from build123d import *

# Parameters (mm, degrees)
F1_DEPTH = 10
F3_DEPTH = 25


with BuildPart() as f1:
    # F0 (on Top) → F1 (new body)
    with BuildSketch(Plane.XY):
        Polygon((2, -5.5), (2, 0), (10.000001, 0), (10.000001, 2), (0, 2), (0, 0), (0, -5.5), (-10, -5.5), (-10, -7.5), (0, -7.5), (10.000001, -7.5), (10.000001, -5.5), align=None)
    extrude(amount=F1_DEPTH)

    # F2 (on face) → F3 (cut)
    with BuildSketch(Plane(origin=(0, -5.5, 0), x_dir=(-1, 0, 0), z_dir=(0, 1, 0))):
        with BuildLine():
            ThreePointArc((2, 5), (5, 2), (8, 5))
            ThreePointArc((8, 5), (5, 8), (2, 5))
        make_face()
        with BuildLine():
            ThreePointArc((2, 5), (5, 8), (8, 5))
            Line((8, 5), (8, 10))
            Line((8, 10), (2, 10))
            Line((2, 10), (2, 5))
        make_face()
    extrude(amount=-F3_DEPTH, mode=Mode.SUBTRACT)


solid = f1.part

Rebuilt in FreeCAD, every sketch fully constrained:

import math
import FreeCAD as App
import Part
import Sketcher
Q = App.Units.Quantity

doc = App.newDocument("Part")
body = doc.addObject("PartDesign::Body", "Body")

sketch1 = body.newObject("Sketcher::SketchObject", "Sketch")
sketch1.AttachmentSupport = (doc.getObject("XY_Plane"), [""])
sketch1.MapMode = "FlatFace"
sketch1.addGeometry(Part.LineSegment(App.Vector(2, -5.5, 0), App.Vector(2, 0, 0)), False)
sketch1.addGeometry(Part.LineSegment(App.Vector(2, 0, 0), App.Vector(10, 0, 0)), False)
sketch1.addGeometry(Part.LineSegment(App.Vector(10, 0, 0), App.Vector(10, 2, 0)), False)
sketch1.addGeometry(Part.LineSegment(App.Vector(10, 2, 0), App.Vector(0, 2, 0)), False)
sketch1.addGeometry(Part.LineSegment(App.Vector(0, 2, 0), App.Vector(0, -5.5, 0)), False)
sketch1.addGeometry(Part.LineSegment(App.Vector(0, -5.5, 0), App.Vector(-10, -5.5, 0)), False)
sketch1.addGeometry(Part.LineSegment(App.Vector(-10, -5.5, 0), App.Vector(-10, -7.5, 0)), False)
sketch1.addGeometry(Part.LineSegment(App.Vector(-10, -7.5, 0), App.Vector(10, -7.5, 0)), False)
sketch1.addGeometry(Part.LineSegment(App.Vector(10, -7.5, 0), App.Vector(10, -5.5, 0)), False)
sketch1.addGeometry(Part.LineSegment(App.Vector(10, -5.5, 0), App.Vector(2, -5.5, 0)), False)
sketch1.addConstraint(Sketcher.Constraint("Coincident", 0, 2, 1, 1))
sketch1.addConstraint(Sketcher.Constraint("Coincident", 1, 2, 2, 1))
sketch1.addConstraint(Sketcher.Constraint("Coincident", 2, 2, 3, 1))
sketch1.addConstraint(Sketcher.Constraint("Coincident", 3, 2, 4, 1))
sketch1.addConstraint(Sketcher.Constraint("Coincident", 4, 2, 5, 1))
sketch1.addConstraint(Sketcher.Constraint("Coincident", 5, 2, 6, 1))
sketch1.addConstraint(Sketcher.Constraint("Coincident", 6, 2, 7, 1))
sketch1.addConstraint(Sketcher.Constraint("Coincident", 7, 2, 8, 1))
sketch1.addConstraint(Sketcher.Constraint("Coincident", 8, 2, 9, 1))
sketch1.addConstraint(Sketcher.Constraint("Coincident", 9, 2, 0, 1))
sketch1.addConstraint(Sketcher.Constraint("Vertical", 0))
sketch1.addConstraint(Sketcher.Constraint("Horizontal", 1))
sketch1.addConstraint(Sketcher.Constraint("Vertical", 2))
sketch1.addConstraint(Sketcher.Constraint("Horizontal", 3))
sketch1.addConstraint(Sketcher.Constraint("Vertical", 4))
sketch1.addConstraint(Sketcher.Constraint("Horizontal", 5))
sketch1.addConstraint(Sketcher.Constraint("Vertical", 6))
sketch1.addConstraint(Sketcher.Constraint("Horizontal", 7))
sketch1.addConstraint(Sketcher.Constraint("Vertical", 8))
sketch1.addConstraint(Sketcher.Constraint("Horizontal", 9))
sketch1.addConstraint(Sketcher.Constraint("Symmetric", 5, 2, 8, 2, -2))
sketch1.addConstraint(Sketcher.Constraint("PointOnObject", 0, 2, -1))
sketch1.addConstraint(Sketcher.Constraint("PointOnObject", 3, 2, -2))
sketch1.addConstraint(Sketcher.Constraint("Vertical", 2, 2, 7, 2))
sketch1.addConstraint(Sketcher.Constraint("Equal", 2, 6))
sketch1.addConstraint(Sketcher.Constraint("DistanceX", 1, 1, 1, 2, Q("8.000001 mm")))
sketch1.addConstraint(Sketcher.Constraint("DistanceX", 3, 2, 3, 1, Q("10.000001 mm")))
sketch1.addConstraint(Sketcher.Constraint("DistanceY", 2, 1, 2, 2, Q("2 mm")))
sketch1.addConstraint(Sketcher.Constraint("DistanceY", 0, 1, 0, 2, Q("5.5 mm")))
pad1 = body.newObject("PartDesign::Pad", "Pad")
pad1.Profile = sketch1
pad1.Length = 10

sketch2 = body.newObject("Sketcher::SketchObject", "Sketch001")
sketch2.AttachmentSupport = (doc.getObject("XZ_Plane"), [""])
sketch2.MapMode = "FlatFace"
sketch2.AttachmentOffset = App.Placement(App.Vector(0, 0, 5.5), App.Rotation())
sketch2.addGeometry(Part.ArcOfCircle(Part.Circle(App.Vector(-5, 5, 0), App.Vector(0, 0, 1), 3), math.radians(180), math.radians(360)), False)
sketch2.addGeometry(Part.LineSegment(App.Vector(-8, 5, 0), App.Vector(-8, 10, 0)), False)
sketch2.addGeometry(Part.LineSegment(App.Vector(-8, 10, 0), App.Vector(-2, 10, 0)), False)
sketch2.addGeometry(Part.LineSegment(App.Vector(-2, 10, 0), App.Vector(-2, 5, 0)), False)
sketch2.addConstraint(Sketcher.Constraint("Tangent", 0, 1, 1, 1))
sketch2.addConstraint(Sketcher.Constraint("Coincident", 1, 2, 2, 1))
sketch2.addConstraint(Sketcher.Constraint("Coincident", 2, 2, 3, 1))
sketch2.addConstraint(Sketcher.Constraint("Tangent", 3, 2, 0, 2))
sketch2.addConstraint(Sketcher.Constraint("Vertical", 1))
sketch2.addConstraint(Sketcher.Constraint("Horizontal", 2))
sketch2.addConstraint(Sketcher.Constraint("Vertical", 3))
sketch2.addConstraint(Sketcher.Constraint("Radius", 0, Q("3 mm")))
sketch2.addConstraint(Sketcher.Constraint("DistanceY", 1, 1, 1, 2, Q("5 mm")))
sketch2.addConstraint(Sketcher.Constraint("DistanceX", 0, 3, -1, 1, Q("5 mm")))
sketch2.addConstraint(Sketcher.Constraint("DistanceY", -1, 1, 0, 3, Q("5 mm")))
pocket1 = body.newObject("PartDesign::Pocket", "Pocket")
pocket1.Profile = sketch2
pocket1.Length = 25
pocket1.Reversed = True

doc.recompute()
